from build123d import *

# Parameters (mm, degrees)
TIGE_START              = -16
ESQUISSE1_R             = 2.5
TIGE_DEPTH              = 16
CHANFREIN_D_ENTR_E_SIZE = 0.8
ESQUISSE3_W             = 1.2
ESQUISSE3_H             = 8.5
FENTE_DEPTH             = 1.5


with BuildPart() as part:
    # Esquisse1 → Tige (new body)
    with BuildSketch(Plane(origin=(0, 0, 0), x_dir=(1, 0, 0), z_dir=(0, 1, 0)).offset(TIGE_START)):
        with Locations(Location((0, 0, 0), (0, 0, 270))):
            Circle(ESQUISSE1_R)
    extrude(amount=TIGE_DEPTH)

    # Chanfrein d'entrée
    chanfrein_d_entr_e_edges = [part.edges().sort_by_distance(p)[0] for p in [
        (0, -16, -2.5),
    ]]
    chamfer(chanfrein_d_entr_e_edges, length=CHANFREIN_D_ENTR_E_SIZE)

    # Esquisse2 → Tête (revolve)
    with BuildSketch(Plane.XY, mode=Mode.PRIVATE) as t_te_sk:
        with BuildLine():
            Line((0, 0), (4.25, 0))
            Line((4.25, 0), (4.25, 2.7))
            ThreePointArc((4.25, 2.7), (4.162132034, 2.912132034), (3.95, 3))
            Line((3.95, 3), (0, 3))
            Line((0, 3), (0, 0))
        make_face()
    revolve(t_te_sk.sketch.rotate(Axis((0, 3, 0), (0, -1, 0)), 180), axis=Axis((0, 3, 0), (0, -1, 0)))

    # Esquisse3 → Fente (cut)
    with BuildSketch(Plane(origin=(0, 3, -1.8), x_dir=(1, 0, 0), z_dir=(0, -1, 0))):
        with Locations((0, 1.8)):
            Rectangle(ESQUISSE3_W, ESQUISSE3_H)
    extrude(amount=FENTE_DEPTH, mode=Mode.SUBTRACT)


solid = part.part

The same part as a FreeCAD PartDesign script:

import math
import FreeCAD as App
import Part
import Sketcher

V = App.Vector


def edges_at(feature, points):
    """Names of the edges that pass closest to the given points."""
    edges = feature.Shape.Edges
    near = lambda p: min(range(len(edges)), key=lambda i: edges[i].distToShape(Part.Vertex(*p))[0])
    return sorted({f"Edge{near(p) + 1}" for p in points})

doc = App.newDocument("Part")
body = doc.addObject("PartDesign::Body", "Body")

# Sketch on XZ plane
sketch1 = doc.addObject("Sketcher::SketchObject", "Sketch")
body.addObject(sketch1)
sketch1.AttachmentSupport = (doc.XZ_Plane, [""])
sketch1.MapMode = "FlatFace"
sketch1.AttachmentOffset = App.Placement(V(0, 0, 16), App.Rotation())
sketch1.addGeometry(Part.Circle(V(0, 0, 0), V(0, 0, 1), 2.5), False)
sketch1.addConstraint([
    Sketcher.Constraint("Coincident", 0, 3, -1, 1),
    Sketcher.Constraint("Diameter", 0, 5.0),
])
pad1 = doc.addObject("PartDesign::Pad", "Pad")
body.addObject(pad1)
pad1.Profile = sketch1
pad1.Length = 16
pad1.Reversed = True
doc.recompute()

chamfer = doc.addObject("PartDesign::Chamfer", "Chamfer")
body.addObject(chamfer)
chamfer.Base = (pad1, edges_at(pad1, [(0, -16, -2.5)]))
chamfer.Size = 0.8

# Sketch on XY plane
sketch2 = doc.addObject("Sketcher::SketchObject", "Sketch001")
body.addObject(sketch2)
sketch2.AttachmentSupport = (doc.XY_Plane, [""])
sketch2.MapMode = "FlatFace"
sketch2.addGeometry([
    Part.LineSegment(V(0, 0, 0), V(4.25, 0, 0)),  # 0
    Part.LineSegment(V(4.25, 0, 0), V(4.25, 2.7, 0)),  # 1
    Part.ArcOfCircle(Part.Circle(V(3.95, 2.7, 0), V(0, 0, 1), 0.3), math.radians(0), math.radians(90)),  # 2
    Part.LineSegment(V(3.95, 3, 0), V(0, 3, 0)),  # 3
    Part.LineSegment(V(0, 3, 0), V(0, 0, 0)),  # 4
], False)
sketch2.addConstraint([
    Sketcher.Constraint("Coincident", 0, 2, 1, 1),
    Sketcher.Constraint("Tangent", 1, 2, 2, 1),
    Sketcher.Constraint("Tangent", 2, 2, 3, 1),
    Sketcher.Constraint("Coincident", 3, 2, 4, 1),
    Sketcher.Constraint("Coincident", 4, 2, 0, 1),
    Sketcher.Constraint("Horizontal", 0),
    Sketcher.Constraint("Vertical", 1),
    Sketcher.Constraint("Horizontal", 3),
    Sketcher.Constraint("Vertical", 4),
    Sketcher.Constraint("Coincident", 4, 2, -1, 1),
    Sketcher.Constraint("Radius", 2, 0.3),
    Sketcher.Constraint("DistanceY", 4, 2, 4, 1, 3.0),
    Sketcher.Constraint("DistanceX", 0, 1, 0, 2, 4.25),
])
revolution = doc.addObject("PartDesign::Revolution", "Revolution")
body.addObject(revolution)
revolution.Profile = sketch2
revolution.ReferenceAxis = (sketch2, ["V_Axis"])
revolution.Angle = 360

# Sketch on XZ plane
sketch3 = doc.addObject("Sketcher::SketchObject", "Sketch002")
body.addObject(sketch3)
sketch3.AttachmentSupport = (doc.XZ_Plane, [""])
sketch3.MapMode = "FlatFace"
sketch3.AttachmentOffset = App.Placement(V(0, 0, -3), App.Rotation())
sketch3.addGeometry([
    Part.LineSegment(V(-0.6, 4.2, 0), V(-0.6, -4.2, 0)),
    Part.LineSegment(V(-0.6, -4.2, 0), V(0.6, -4.2, 0)),
    Part.LineSegment(V(0.6, -4.2, 0), V(0.6, 4.2, 0)),
    Part.LineSegment(V(0.6, 4.2, 0), V(-0.6, 4.2, 0)),
], False)
sketch3.addConstraint([
    Sketcher.Constraint("Coincident", 0, 2, 1, 1),
    Sketcher.Constraint("Coincident", 1, 2, 2, 1),
    Sketcher.Constraint("Coincident", 2, 2, 3, 1),
    Sketcher.Constraint("Coincident", 3, 2, 0, 1),
    Sketcher.Constraint("Vertical", 0),
    Sketcher.Constraint("Horizontal", 1),
    Sketcher.Constraint("Vertical", 2),
    Sketcher.Constraint("Horizontal", 3),
    Sketcher.Constraint("Symmetric", 0, 2, 2, 2, -1, 1),
    Sketcher.Constraint("DistanceX", 1, 1, 1, 2, 1.2),
    Sketcher.Constraint("DistanceY", 0, 2, 0, 1, 8.5),
])
pocket1 = doc.addObject("PartDesign::Pocket", "Pocket")
body.addObject(pocket1)
pocket1.Profile = sketch3
pocket1.Length = 1.5
pocket1.Reversed = True

doc.recompute()
